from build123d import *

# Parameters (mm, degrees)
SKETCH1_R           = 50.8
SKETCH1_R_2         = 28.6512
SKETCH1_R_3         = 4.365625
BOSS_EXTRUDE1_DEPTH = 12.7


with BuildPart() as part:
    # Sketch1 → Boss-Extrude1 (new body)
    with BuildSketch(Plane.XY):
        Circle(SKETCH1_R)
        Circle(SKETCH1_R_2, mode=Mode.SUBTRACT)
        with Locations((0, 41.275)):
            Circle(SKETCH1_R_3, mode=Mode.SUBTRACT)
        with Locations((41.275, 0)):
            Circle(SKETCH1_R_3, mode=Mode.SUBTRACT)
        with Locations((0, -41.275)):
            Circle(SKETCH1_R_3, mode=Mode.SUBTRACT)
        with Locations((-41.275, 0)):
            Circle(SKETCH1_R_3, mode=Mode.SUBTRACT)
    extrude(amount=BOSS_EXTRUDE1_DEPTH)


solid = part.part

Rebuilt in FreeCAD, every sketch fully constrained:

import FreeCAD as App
import Part
import Sketcher
Q = App.Units.Quantity

doc = App.newDocument("Part")
body = doc.addObject("PartDesign::Body", "Body")

sketch1 = body.newObject("Sketcher::SketchObject", "Sketch")
sketch1.AttachmentSupport = (doc.getObject("XY_Plane"), [""])
sketch1.MapMode = "FlatFace"
sketch1.addGeometry([
    Part.Circle(App.Vector(0, 0, 0), App.Vector(0, 0, 1), 50.8),
    Part.Circle(App.Vector(0, -41.3, 0), App.Vector(0, 0, 1), 4.4),
    Part.Circle(App.Vector(-41.3, 0, 0), App.Vector(0, 0, 1), 4.4),
    Part.Circle(App.Vector(0, 0, 0), App.Vector(0, 0, 1), 28.7),
    Part.Circle(App.Vector(41.3, 0, 0), App.Vector(0, 0, 1), 4.4),
    Part.Circle(App.Vector(0, 41.3, 0), App.Vector(0, 0, 1), 4.4),
], False)
sketch1.addConstraint([
    Sketcher.Constraint("Coincident", 0, 3, -1, 1),
    Sketcher.Constraint("Coincident", 3, 3, -1, 1),
    Sketcher.Constraint("Equal", 1, 2),
    Sketcher.Constraint("Equal", 2, 4),
    Sketcher.Constraint("Equal", 4, 5),
    Sketcher.Constraint("Symmetric", 2, 3, 4, 3, -1, 1),
    Sketcher.Constraint("Symmetric", 1, 3, 5, 3, -1, 1),
    Sketcher.Constraint("PointOnObject", 1, 3, -2),
    Sketcher.Constraint("PointOnObject", 2, 3, -1),
    Sketcher.Constraint("Diameter", 0, Q("4 in")),
    Sketcher.Constraint("Diameter", 1, Q("0.34375 in")),
    Sketcher.Constraint("Diameter", 3, Q("2.256 in")),
    Sketcher.Constraint("DistanceX", 2, 3, 4, 3, Q("3.25 in")),
    Sketcher.Constraint("DistanceY", 1, 3, 5, 3, Q("3.25 in")),
])
pad1 = body.newObject("PartDesign::Pad", "Pad")
pad1.Profile = sketch1
pad1.Length = Q("0.5 in")

doc.recompute()
